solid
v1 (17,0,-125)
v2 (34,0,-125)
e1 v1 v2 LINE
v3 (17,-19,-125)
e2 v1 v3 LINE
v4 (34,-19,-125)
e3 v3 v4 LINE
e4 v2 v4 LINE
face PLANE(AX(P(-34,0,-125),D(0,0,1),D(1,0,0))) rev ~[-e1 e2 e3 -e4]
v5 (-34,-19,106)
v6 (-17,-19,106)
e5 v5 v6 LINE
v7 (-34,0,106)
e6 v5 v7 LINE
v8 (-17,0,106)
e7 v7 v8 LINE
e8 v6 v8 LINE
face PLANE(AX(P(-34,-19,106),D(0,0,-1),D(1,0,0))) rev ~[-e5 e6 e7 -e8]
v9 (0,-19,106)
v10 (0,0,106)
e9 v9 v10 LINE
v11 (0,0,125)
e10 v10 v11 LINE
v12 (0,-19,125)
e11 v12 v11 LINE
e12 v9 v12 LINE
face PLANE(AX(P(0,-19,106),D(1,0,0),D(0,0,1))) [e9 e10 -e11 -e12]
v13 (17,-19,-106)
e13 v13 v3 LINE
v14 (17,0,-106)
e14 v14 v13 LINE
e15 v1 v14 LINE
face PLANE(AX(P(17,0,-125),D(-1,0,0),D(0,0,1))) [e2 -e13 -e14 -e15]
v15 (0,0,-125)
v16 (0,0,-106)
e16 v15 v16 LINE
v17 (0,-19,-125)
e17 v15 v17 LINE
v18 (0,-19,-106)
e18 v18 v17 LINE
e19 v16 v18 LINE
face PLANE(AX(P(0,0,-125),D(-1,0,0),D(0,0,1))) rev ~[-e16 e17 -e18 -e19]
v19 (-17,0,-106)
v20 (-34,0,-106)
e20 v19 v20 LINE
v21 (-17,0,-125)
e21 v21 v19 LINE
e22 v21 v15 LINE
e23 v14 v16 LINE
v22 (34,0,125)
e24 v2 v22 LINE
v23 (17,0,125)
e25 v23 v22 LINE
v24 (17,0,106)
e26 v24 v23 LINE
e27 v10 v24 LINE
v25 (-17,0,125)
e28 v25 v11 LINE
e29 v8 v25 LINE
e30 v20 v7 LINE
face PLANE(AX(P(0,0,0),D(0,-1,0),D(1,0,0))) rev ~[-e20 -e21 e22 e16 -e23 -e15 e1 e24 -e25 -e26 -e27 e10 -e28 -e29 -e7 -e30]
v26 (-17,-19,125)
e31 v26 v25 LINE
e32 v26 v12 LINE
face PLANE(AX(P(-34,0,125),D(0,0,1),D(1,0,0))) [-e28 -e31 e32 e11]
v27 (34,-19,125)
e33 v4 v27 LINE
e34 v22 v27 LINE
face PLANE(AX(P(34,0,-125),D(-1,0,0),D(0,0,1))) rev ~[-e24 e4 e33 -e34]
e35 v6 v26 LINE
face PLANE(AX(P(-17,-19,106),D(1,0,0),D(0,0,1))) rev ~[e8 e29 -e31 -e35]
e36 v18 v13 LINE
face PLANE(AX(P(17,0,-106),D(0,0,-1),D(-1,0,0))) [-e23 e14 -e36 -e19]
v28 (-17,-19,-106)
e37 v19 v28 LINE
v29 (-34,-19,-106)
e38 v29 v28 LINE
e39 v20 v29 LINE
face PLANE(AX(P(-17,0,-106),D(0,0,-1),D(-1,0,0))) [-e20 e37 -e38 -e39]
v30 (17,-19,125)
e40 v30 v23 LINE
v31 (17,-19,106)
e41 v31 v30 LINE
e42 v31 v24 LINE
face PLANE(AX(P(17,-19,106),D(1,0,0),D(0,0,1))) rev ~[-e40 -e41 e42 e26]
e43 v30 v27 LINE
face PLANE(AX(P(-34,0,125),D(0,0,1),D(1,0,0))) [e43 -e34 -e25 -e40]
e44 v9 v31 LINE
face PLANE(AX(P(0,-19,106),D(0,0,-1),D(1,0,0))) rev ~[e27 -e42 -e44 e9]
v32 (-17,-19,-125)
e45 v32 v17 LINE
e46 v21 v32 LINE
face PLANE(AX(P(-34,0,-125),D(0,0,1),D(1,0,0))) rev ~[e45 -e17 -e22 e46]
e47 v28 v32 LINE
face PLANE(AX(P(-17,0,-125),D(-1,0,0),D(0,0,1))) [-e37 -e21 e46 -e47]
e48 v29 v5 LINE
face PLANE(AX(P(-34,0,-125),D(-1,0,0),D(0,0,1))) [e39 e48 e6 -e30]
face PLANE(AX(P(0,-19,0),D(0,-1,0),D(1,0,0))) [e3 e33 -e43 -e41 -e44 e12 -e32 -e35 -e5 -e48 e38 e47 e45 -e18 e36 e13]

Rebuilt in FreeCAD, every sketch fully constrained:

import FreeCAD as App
import Part
import Sketcher

V = App.Vector

doc = App.newDocument("Part")
body = doc.addObject("PartDesign::Body", "Body")

# Sketch on XZ plane
sketch1 = doc.addObject("Sketcher::SketchObject", "Sketch")
body.addObject(sketch1)
sketch1.AttachmentSupport = (doc.XZ_Plane, [""])
sketch1.MapMode = "FlatFace"
sketch1.addGeometry(Part.LineSegment(V(-34, 125, 0), V(-34, -125, 0)), False)
sketch1.addGeometry(Part.LineSegment(V(-34, -125, 0), V(34, -125, 0)), False)
sketch1.addGeometry(Part.LineSegment(V(34, -125, 0), V(34, 125, 0)), False)
sketch1.addGeometry(Part.LineSegment(V(34, 125, 0), V(-34, 125, 0)), False)
sketch1.addConstraint(Sketcher.Constraint("Coincident", 0, 2, 1, 1))
sketch1.addConstraint(Sketcher.Constraint("Coincident", 1, 2, 2, 1))
sketch1.addConstraint(Sketcher.Constraint("Coincident", 2, 2, 3, 1))
sketch1.addConstraint(Sketcher.Constraint("Coincident", 3, 2, 0, 1))
sketch1.addConstraint(Sketcher.Constraint("Vertical", 0))
sketch1.addConstraint(Sketcher.Constraint("Horizontal", 1))
sketch1.addConstraint(Sketcher.Constraint("Vertical", 2))
sketch1.addConstraint(Sketcher.Constraint("Horizontal", 3))
sketch1.addConstraint(Sketcher.Constraint("Symmetric", 0, 2, 2, 2, -1, 1))
sketch1.addConstraint(Sketcher.Constraint("DistanceX", 1, 1, 1, 2, 68.0))
sketch1.addConstraint(Sketcher.Constraint("DistanceY", 0, 2, 0, 1, 250.0))
pad1 = doc.addObject("PartDesign::Pad", "Pad")
body.addObject(pad1)
pad1.Profile = sketch1
pad1.Length = 19

# Sketch on XZ plane
sketch2 = doc.addObject("Sketcher::SketchObject", "Sketch001")
body.addObject(sketch2)
sketch2.AttachmentSupport = (doc.XZ_Plane, [""])
sketch2.MapMode = "FlatFace"
sketch2.AttachmentOffset = App.Placement(V(0, 0, 19), App.Rotation())
sketch2.addGeometry(Part.LineSegment(V(0, 125, 0), V(0, 106, 0)), False)
sketch2.addGeometry(Part.LineSegment(V(0, 106, 0), V(17, 106, 0)), False)
sketch2.addGeometry(Part.LineSegment(V(17, 106, 0), V(17, 125, 0)), False)
sketch2.addGeometry(Part.LineSegment(V(17, 125, 0), V(0, 125, 0)), False)
sketch2.addGeometry(Part.LineSegment(V(-34, 125, 0), V(-34, 106, 0)), False)
sketch2.addGeometry(Part.LineSegment(V(-34, 106, 0), V(-17, 106, 0)), False)
sketch2.addGeometry(Part.LineSegment(V(-17, 106, 0), V(-17, 125, 0)), False)
sketch2.addGeometry(Part.LineSegment(V(-17, 125, 0), V(-34, 125, 0)), False)
sketch2.addConstraint(Sketcher.Constraint("Coincident", 0, 2, 1, 1))
sketch2.addConstraint(Sketcher.Constraint("Coincident", 1, 2, 2, 1))
sketch2.addConstraint(Sketcher.Constraint("Coincident", 2, 2, 3, 1))
sketch2.addConstraint(Sketcher.Constraint("Coincident", 3, 2, 0, 1))
sketch2.addConstraint(Sketcher.Constraint("Coincident", 4, 2, 5, 1))
sketch2.addConstraint(Sketcher.Constraint("Coincident", 5, 2, 6, 1))
sketch2.addConstraint(Sketcher.Constraint("Coincident", 6, 2, 7, 1))
sketch2.addConstraint(Sketcher.Constraint("Coincident", 7, 2, 4, 1))
sketch2.addConstraint(Sketcher.Constraint("Vertical", 0))
sketch2.addConstraint(Sketcher.Constraint("Horizontal", 1))
sketch2.addConstraint(Sketcher.Constraint("Vertical", 2))
sketch2.addConstraint(Sketcher.Constraint("Horizontal", 3))
sketch2.addConstraint(Sketcher.Constraint("Vertical", 4))
sketch2.addConstraint(Sketcher.Constraint("Horizontal", 5))
sketch2.addConstraint(Sketcher.Constraint("Vertical", 6))
sketch2.addConstraint(Sketcher.Constraint("Horizontal", 7))
sketch2.addConstraint(Sketcher.Constraint("Symmetric", 1, 2, 5, 2, -2))
sketch2.addConstraint(Sketcher.Constraint("PointOnObject", 0, 2, -2))
sketch2.addConstraint(Sketcher.Constraint("Horizontal", 3, 2, 6, 2))
sketch2.addConstraint(Sketcher.Constraint("Equal", 3, 5))
sketch2.addConstraint(Sketcher.Constraint("DistanceX", 1, 1, 1, 2, 17.0))
sketch2.addConstraint(Sketcher.Constraint("DistanceY", 0, 2, 0, 1, 19.0))
sketch2.addConstraint(Sketcher.Constraint("DistanceY", -1, 1, 0, 2, 106.0))
pocket1 = doc.addObject("PartDesign::Pocket", "Pocket")
body.addObject(pocket1)
pocket1.Profile = sketch2
pocket1.Type = "ThroughAll"

# Sketch on XZ plane
sketch3 = doc.addObject("Sketcher::SketchObject", "Sketch002")
body.addObject(sketch3)
sketch3.AttachmentSupport = (doc.XZ_Plane, [""])
sketch3.MapMode = "FlatFace"
sketch3.addGeometry(Part.LineSegment(V(-17, -106, 0), V(-17, -125, 0)), False)
sketch3.addGeometry(Part.LineSegment(V(-17, -125, 0), V(-34, -125, 0)), False)
sketch3.addGeometry(Part.LineSegment(V(-34, -125, 0), V(-34, -106, 0)), False)
sketch3.addGeometry(Part.LineSegment(V(-34, -106, 0), V(-17, -106, 0)), False)
sketch3.addGeometry(Part.LineSegment(V(17, -106, 0), V(17, -125, 0)), False)
sketch3.addGeometry(Part.LineSegment(V(17, -125, 0), V(0, -125, 0)), False)
sketch3.addGeometry(Part.LineSegment(V(0, -125, 0), V(0, -106, 0)), False)
sketch3.addGeometry(Part.LineSegment(V(0, -106, 0), V(17, -106, 0)), False)
sketch3.addConstraint(Sketcher.Constraint("Coincident", 0, 2, 1, 1))
sketch3.addConstraint(Sketcher.Constraint("Coincident", 1, 2, 2, 1))
sketch3.addConstraint(Sketcher.Constraint("Coincident", 2, 2, 3, 1))
sketch3.addConstraint(Sketcher.Constraint("Coincident", 3, 2, 0, 1))
sketch3.addConstraint(Sketcher.Constraint("Coincident", 4, 2, 5, 1))
sketch3.addConstraint(Sketcher.Constraint("Coincident", 5, 2, 6, 1))
sketch3.addConstraint(Sketcher.Constraint("Coincident", 6, 2, 7, 1))
sketch3.addConstraint(Sketcher.Constraint("Coincident", 7, 2, 4, 1))
sketch3.addConstraint(Sketcher.Constraint("Vertical", 0))
sketch3.addConstraint(Sketcher.Constraint("Horizontal", 1))
sketch3.addConstraint(Sketcher.Constraint("Vertical", 2))
sketch3.addConstraint(Sketcher.Constraint("Horizontal", 3))
sketch3.addConstraint(Sketcher.Constraint("Vertical", 4))
sketch3.addConstraint(Sketcher.Constraint("Horizontal", 5))
sketch3.addConstraint(Sketcher.Constraint("Vertical", 6))
sketch3.addConstraint(Sketcher.Constraint("Horizontal", 7))
sketch3.addConstraint(Sketcher.Constraint("Symmetric", 0, 2, 4, 2, -2))
sketch3.addConstraint(Sketcher.Constraint("PointOnObject", 5, 2, -2))
sketch3.addConstraint(Sketcher.Constraint("Horizontal", 3, 2, 6, 2))
sketch3.addConstraint(Sketcher.Constraint("Equal", 3, 5))
sketch3.addConstraint(Sketcher.Constraint("DistanceX", 1, 2, 1, 1, 17.0))
sketch3.addConstraint(Sketcher.Constraint("DistanceY", 0, 2, 0, 1, 19.0))
sketch3.addConstraint(Sketcher.Constraint("DistanceY", 0, 2, -1, 1, 125.0))
pocket2 = doc.addObject("PartDesign::Pocket", "Pocket001")
body.addObject(pocket2)
pocket2.Profile = sketch3
pocket2.Type = "ThroughAll"
pocket2.Reversed = True

doc.recompute()
